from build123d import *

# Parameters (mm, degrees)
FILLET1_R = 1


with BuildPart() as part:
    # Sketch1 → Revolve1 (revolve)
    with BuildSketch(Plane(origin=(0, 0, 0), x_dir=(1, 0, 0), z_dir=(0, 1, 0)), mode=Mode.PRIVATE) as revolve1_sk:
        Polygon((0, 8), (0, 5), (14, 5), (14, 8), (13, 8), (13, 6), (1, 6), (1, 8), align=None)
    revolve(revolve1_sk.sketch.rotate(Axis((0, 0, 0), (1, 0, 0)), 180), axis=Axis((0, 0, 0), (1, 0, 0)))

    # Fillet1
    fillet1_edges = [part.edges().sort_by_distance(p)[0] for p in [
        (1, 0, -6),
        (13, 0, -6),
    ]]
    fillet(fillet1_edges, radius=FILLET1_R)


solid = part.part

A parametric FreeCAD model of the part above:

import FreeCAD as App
import Part
import Sketcher


def edges_at(feature, points):
    """Names of the edges that pass closest to the given points."""
    edges = feature.Shape.Edges
    near = lambda p: min(range(len(edges)), key=lambda i: edges[i].distToShape(Part.Vertex(*p))[0])
    return sorted({f"Edge{near(p) + 1}" for p in points})

doc = App.newDocument("Part")
params = doc.addObject("Spreadsheet::Sheet", "Params")
for row, (alias, value) in enumerate([
    ("sketch1_width", "14 mm"),
    ("sketch1_width2", "1 mm"),
    ("sketch1_height", "3 mm"),
    ("sketch1_height2", "2 mm"),
    ("revolution_angle", "360 deg"),
    ("fillet_radius", "1 mm"),
], start=1):
    params.set(f"A{row}", alias)
    params.set(f"B{row}", "=" + value)
    params.setAlias(f"B{row}", alias)

body = doc.addObject("PartDesign::Body", "Body")

# Sketch on XZ plane
sketch1 = doc.addObject("Sketcher::SketchObject", "Sketch")
body.addObject(sketch1)
sketch1.AttachmentSupport = (doc.XZ_Plane, [""])
sketch1.MapMode = "FlatFace"
sketch1.addGeometry(Part.LineSegment(App.Vector(0, -8, 0), App.Vector(0, -5, 0)), False)
sketch1.addGeometry(Part.LineSegment(App.Vector(0, -5, 0), App.Vector(14, -5, 0)), False)
sketch1.addGeometry(Part.LineSegment(App.Vector(14, -5, 0), App.Vector(14, -8, 0)), False)
sketch1.addGeometry(Part.LineSegment(App.Vector(14, -8, 0), App.Vector(13, -8, 0)), False)
sketch1.addGeometry(Part.LineSegment(App.Vector(13, -8, 0), App.Vector(13, -6, 0)), False)
sketch1.addGeometry(Part.LineSegment(App.Vector(13, -6, 0), App.Vector(1, -6, 0)), False)
sketch1.addGeometry(Part.LineSegment(App.Vector(1, -6, 0), App.Vector(1, -8, 0)), False)
sketch1.addGeometry(Part.LineSegment(App.Vector(1, -8, 0), App.Vector(0, -8, 0)), False)
sketch1.addConstraint(Sketcher.Constraint("Coincident", 0, 2, 1, 1))
sketch1.addConstraint(Sketcher.Constraint("Coincident", 1, 2, 2, 1))
sketch1.addConstraint(Sketcher.Constraint("Coincident", 2, 2, 3, 1))
sketch1.addConstraint(Sketcher.Constraint("Coincident", 3, 2, 4, 1))
sketch1.addConstraint(Sketcher.Constraint("Coincident", 4, 2, 5, 1))
sketch1.addConstraint(Sketcher.Constraint("Coincident", 5, 2, 6, 1))
sketch1.addConstraint(Sketcher.Constraint("Coincident", 6, 2, 7, 1))
sketch1.addConstraint(Sketcher.Constraint("Coincident", 7, 2, 0, 1))
sketch1.addConstraint(Sketcher.Constraint("Vertical", 0))
sketch1.addConstraint(Sketcher.Constraint("Horizontal", 1))
sketch1.addConstraint(Sketcher.Constraint("Vertical", 2))
sketch1.addConstraint(Sketcher.Constraint("Horizontal", 3))
sketch1.addConstraint(Sketcher.Constraint("Vertical", 4))
sketch1.addConstraint(Sketcher.Constraint("Horizontal", 5))
sketch1.addConstraint(Sketcher.Constraint("Vertical", 6))
sketch1.addConstraint(Sketcher.Constraint("Horizontal", 7))
sketch1.addConstraint(Sketcher.Constraint("PointOnObject", 0, 2, -2))
sketch1.addConstraint(Sketcher.Constraint("Horizontal", 3, 2, 6, 2))
sketch1.addConstraint(Sketcher.Constraint("Equal", 3, 7))
sketch1.addConstraint(Sketcher.Constraint("DistanceX", 1, 1, 1, 2, 14.0))
sketch1.addConstraint(Sketcher.Constraint("DistanceX", 3, 2, 3, 1, 1.0))
sketch1.addConstraint(Sketcher.Constraint("DistanceY", 0, 1, 0, 2, 3.0))
sketch1.addConstraint(Sketcher.Constraint("DistanceY", 4, 1, 4, 2, 2.0))
sketch1.addConstraint(Sketcher.Constraint("DistanceY", 0, 2, -1, 1, 5.0))
sketch1.setExpression("Constraints[19]", "Params.sketch1_width")
sketch1.setExpression("Constraints[20]", "Params.sketch1_width2")
sketch1.setExpression("Constraints[21]", "Params.sketch1_height")
sketch1.setExpression("Constraints[22]", "Params.sketch1_height2")
revolution = doc.addObject("PartDesign::Revolution", "Revolution")
body.addObject(revolution)
revolution.Profile = sketch1
revolution.ReferenceAxis = (sketch1, ["H_Axis"])
revolution.setExpression("Angle", "Params.revolution_angle")
doc.recompute()

fillet = doc.addObject("PartDesign::Fillet", "Fillet")
body.addObject(fillet)
fillet.Base = (revolution, edges_at(revolution, [(1, 0, -6), (13, 0, -6)]))
fillet.setExpression("Radius", "Params.fillet_radius")

doc.recompute()
